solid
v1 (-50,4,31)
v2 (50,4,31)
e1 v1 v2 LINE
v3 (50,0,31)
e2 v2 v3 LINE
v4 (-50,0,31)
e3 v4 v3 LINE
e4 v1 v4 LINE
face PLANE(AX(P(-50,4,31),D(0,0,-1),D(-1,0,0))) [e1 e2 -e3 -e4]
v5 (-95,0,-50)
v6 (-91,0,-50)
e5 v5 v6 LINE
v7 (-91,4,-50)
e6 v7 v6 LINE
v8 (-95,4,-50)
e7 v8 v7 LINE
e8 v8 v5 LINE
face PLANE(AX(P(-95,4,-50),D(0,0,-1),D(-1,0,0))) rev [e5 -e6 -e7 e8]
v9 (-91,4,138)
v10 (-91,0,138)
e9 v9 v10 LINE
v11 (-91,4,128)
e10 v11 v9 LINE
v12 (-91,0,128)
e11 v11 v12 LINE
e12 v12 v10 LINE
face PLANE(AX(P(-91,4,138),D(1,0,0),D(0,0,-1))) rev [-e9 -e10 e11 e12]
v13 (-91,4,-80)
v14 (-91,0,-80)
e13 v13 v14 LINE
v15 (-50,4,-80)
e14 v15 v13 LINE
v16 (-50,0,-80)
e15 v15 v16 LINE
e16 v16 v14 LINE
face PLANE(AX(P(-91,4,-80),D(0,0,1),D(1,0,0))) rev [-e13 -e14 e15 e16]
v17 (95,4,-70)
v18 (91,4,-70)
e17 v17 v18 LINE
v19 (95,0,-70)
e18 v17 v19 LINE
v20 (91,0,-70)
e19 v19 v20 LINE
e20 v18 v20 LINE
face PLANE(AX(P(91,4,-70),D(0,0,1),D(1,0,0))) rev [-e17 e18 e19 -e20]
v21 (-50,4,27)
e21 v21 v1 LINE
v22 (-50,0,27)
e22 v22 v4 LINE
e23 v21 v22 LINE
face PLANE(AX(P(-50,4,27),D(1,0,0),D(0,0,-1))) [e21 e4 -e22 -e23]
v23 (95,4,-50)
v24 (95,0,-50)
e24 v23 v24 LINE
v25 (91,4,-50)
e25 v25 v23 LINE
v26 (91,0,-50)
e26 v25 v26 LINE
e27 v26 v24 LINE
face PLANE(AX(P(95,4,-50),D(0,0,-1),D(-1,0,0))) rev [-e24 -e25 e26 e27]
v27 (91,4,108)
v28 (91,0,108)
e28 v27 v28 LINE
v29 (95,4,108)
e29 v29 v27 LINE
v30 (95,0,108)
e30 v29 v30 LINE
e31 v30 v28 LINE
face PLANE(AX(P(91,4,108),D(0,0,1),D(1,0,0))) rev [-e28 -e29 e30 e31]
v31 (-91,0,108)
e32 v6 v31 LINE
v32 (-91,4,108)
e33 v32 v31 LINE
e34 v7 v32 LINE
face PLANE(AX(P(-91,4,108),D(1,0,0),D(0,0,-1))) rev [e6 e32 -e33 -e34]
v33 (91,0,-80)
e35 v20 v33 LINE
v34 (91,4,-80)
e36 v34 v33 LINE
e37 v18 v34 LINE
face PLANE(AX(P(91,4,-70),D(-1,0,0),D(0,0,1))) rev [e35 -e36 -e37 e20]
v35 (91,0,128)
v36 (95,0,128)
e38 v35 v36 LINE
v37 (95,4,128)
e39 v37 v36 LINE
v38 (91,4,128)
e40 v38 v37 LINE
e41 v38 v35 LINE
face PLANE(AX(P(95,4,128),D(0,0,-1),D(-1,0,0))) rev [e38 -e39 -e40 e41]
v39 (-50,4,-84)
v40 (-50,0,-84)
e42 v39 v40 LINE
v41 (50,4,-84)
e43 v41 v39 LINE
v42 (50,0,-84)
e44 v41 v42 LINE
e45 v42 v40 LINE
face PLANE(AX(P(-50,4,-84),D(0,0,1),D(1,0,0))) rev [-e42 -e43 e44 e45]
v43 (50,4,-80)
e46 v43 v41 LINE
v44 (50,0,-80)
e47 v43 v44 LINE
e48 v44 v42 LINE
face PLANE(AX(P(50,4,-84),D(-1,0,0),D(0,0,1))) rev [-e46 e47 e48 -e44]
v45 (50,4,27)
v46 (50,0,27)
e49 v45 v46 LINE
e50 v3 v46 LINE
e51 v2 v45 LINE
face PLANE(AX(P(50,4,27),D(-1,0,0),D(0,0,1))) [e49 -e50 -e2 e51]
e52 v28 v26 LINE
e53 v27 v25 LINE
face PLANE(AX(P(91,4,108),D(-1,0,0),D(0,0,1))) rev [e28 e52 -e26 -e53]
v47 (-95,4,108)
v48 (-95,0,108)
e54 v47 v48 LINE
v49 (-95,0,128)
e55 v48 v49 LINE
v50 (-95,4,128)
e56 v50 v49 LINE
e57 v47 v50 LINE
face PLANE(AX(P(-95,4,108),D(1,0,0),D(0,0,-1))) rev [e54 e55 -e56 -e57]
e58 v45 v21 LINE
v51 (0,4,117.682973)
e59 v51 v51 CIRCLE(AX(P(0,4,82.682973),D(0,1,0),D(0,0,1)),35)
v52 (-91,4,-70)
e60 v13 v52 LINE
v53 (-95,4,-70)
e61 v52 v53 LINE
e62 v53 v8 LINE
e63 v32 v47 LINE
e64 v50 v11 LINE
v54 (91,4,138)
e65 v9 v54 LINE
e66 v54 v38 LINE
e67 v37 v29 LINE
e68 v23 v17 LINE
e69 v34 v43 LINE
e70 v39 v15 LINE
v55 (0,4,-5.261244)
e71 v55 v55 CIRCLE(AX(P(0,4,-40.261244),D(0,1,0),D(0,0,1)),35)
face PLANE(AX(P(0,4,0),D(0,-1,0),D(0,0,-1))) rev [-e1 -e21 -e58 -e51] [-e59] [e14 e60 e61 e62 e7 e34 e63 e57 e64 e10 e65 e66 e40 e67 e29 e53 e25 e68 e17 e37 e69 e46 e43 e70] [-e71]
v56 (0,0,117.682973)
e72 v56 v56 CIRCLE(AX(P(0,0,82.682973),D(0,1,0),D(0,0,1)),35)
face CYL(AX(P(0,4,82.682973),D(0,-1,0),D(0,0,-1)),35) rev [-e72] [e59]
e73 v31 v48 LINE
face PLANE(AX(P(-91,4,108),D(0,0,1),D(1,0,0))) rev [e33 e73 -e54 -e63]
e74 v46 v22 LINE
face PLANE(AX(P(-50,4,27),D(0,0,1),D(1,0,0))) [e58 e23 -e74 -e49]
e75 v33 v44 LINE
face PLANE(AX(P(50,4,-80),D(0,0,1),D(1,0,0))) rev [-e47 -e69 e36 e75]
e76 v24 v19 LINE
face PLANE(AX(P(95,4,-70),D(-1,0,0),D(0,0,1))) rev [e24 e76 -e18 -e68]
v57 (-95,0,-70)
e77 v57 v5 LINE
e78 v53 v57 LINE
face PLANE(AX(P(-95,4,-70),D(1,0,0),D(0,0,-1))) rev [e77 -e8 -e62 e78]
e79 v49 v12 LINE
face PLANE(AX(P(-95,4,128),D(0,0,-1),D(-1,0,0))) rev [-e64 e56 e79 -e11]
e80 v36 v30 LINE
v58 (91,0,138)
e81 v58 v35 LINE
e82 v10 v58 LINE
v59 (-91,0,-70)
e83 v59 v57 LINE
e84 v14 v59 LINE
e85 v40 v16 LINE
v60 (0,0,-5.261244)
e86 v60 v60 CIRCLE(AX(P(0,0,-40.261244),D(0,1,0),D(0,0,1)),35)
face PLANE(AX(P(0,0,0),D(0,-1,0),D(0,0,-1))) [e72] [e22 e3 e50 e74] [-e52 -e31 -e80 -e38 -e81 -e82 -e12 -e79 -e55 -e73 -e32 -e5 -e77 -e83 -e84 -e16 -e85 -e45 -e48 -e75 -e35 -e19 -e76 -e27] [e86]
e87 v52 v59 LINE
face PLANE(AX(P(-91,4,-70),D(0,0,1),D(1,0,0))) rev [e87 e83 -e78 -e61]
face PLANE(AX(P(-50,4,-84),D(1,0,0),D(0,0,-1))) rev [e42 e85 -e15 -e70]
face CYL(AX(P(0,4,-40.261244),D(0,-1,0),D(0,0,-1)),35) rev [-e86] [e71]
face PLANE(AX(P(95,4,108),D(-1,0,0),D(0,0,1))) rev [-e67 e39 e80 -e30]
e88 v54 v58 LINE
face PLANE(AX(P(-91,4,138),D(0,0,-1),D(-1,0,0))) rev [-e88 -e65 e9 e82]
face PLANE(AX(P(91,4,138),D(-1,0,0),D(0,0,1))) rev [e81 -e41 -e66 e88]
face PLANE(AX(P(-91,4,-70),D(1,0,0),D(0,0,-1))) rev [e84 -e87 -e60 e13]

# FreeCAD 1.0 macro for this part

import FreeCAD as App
import Part
import Sketcher

doc = App.newDocument("Part")
body = doc.addObject("PartDesign::Body", "Body")

sketch1 = body.newObject("Sketcher::SketchObject", "Sketch")
sketch1.AttachmentSupport = (doc.getObject("XZ_Plane"), [""])
sketch1.MapMode = "FlatFace"
sketch1.addGeometry([
    Part.LineSegment(App.Vector(50, -84, 0), App.Vector(-50, -84, 0)),
    Part.LineSegment(App.Vector(-50, -84, 0), App.Vector(-50, -80, 0)),
    Part.LineSegment(App.Vector(-50, -80, 0), App.Vector(-91, -80, 0)),
    Part.LineSegment(App.Vector(-91, -80, 0), App.Vector(-91, -70, 0)),
    Part.LineSegment(App.Vector(-91, -70, 0), App.Vector(-95, -70, 0)),
    Part.LineSegment(App.Vector(-95, -70, 0), App.Vector(-95, -50, 0)),
    Part.LineSegment(App.Vector(-95, -50, 0), App.Vector(-91, -50, 0)),
    Part.LineSegment(App.Vector(-91, -50, 0), App.Vector(-91, 108, 0)),
    Part.LineSegment(App.Vector(-91, 108, 0), App.Vector(-95, 108, 0)),
    Part.LineSegment(App.Vector(-95, 108, 0), App.Vector(-95, 128, 0)),
    Part.LineSegment(App.Vector(-95, 128, 0), App.Vector(-91, 128, 0)),
    Part.LineSegment(App.Vector(-91, 128, 0), App.Vector(-91, 138, 0)),
    Part.LineSegment(App.Vector(-91, 138, 0), App.Vector(91, 138, 0)),
    Part.LineSegment(App.Vector(91, 138, 0), App.Vector(91, 128, 0)),
    Part.LineSegment(App.Vector(91, 128, 0), App.Vector(95, 128, 0)),
    Part.LineSegment(App.Vector(95, 128, 0), App.Vector(95, 108, 0)),
    Part.LineSegment(App.Vector(95, 108, 0), App.Vector(91, 108, 0)),
    Part.LineSegment(App.Vector(91, 108, 0), App.Vector(91, -50, 0)),
    Part.LineSegment(App.Vector(91, -50, 0), App.Vector(95, -50, 0)),
    Part.LineSegment(App.Vector(95, -50, 0), App.Vector(95, -70, 0)),
    Part.LineSegment(App.Vector(95, -70, 0), App.Vector(91, -70, 0)),
    Part.LineSegment(App.Vector(91, -70, 0), App.Vector(91, -80, 0)),
    Part.LineSegment(App.Vector(91, -80, 0), App.Vector(50, -80, 0)),
    Part.LineSegment(App.Vector(50, -80, 0), App.Vector(50, -84, 0)),
    Part.Circle(App.Vector(0, 82.7, 0), App.Vector(0, 0, 1), 35),
    Part.LineSegment(App.Vector(-50, 31, 0), App.Vector(-50, 27, 0)),
    Part.LineSegment(App.Vector(-50, 27, 0), App.Vector(50, 27, 0)),
    Part.LineSegment(App.Vector(50, 27, 0), App.Vector(50, 31, 0)),
    Part.LineSegment(App.Vector(50, 31, 0), App.Vector(-50, 31, 0)),
    Part.Circle(App.Vector(0, -40.3, 0), App.Vector(0, 0, 1), 35),
], False)
sketch1.addConstraint([
    Sketcher.Constraint("Coincident", 0, 2, 1, 1),
    Sketcher.Constraint("Coincident", 1, 2, 2, 1),
    Sketcher.Constraint("Coincident", 2, 2, 3, 1),
    Sketcher.Constraint("Coincident", 3, 2, 4, 1),
    Sketcher.Constraint("Coincident", 4, 2, 5, 1),
    Sketcher.Constraint("Coincident", 5, 2, 6, 1),
    Sketcher.Constraint("Coincident", 6, 2, 7, 1),
    Sketcher.Constraint("Coincident", 7, 2, 8, 1),
    Sketcher.Constraint("Coincident", 8, 2, 9, 1),
    Sketcher.Constraint("Coincident", 9, 2, 10, 1),
    Sketcher.Constraint("Coincident", 10, 2, 11, 1),
    Sketcher.Constraint("Coincident", 11, 2, 12, 1),
    Sketcher.Constraint("Coincident", 12, 2, 13, 1),
    Sketcher.Constraint("Coincident", 13, 2, 14, 1),
    Sketcher.Constraint("Coincident", 14, 2, 15, 1),
    Sketcher.Constraint("Coincident", 15, 2, 16, 1),
    Sketcher.Constraint("Coincident", 16, 2, 17, 1),
    Sketcher.Constraint("Coincident", 17, 2, 18, 1),
    Sketcher.Constraint("Coincident", 18, 2, 19, 1),
    Sketcher.Constraint("Coincident", 19, 2, 20, 1),
    Sketcher.Constraint("Coincident", 20, 2, 21, 1),
    Sketcher.Constraint("Coincident", 21, 2, 22, 1),
    Sketcher.Constraint("Coincident", 22, 2, 23, 1),
    Sketcher.Constraint("Coincident", 23, 2, 0, 1),
    Sketcher.Constraint("Coincident", 25, 2, 26, 1),
    Sketcher.Constraint("Coincident", 26, 2, 27, 1),
    Sketcher.Constraint("Coincident", 27, 2, 28, 1),
    Sketcher.Constraint("Coincident", 28, 2, 25, 1),
    Sketcher.Constraint("Horizontal", 0),
    Sketcher.Constraint("Vertical", 1),
    Sketcher.Constraint("Horizontal", 2),
    Sketcher.Constraint("Vertical", 3),
    Sketcher.Constraint("Horizontal", 4),
    Sketcher.Constraint("Vertical", 5),
    Sketcher.Constraint("Horizontal", 6),
    Sketcher.Constraint("Vertical", 7),
    Sketcher.Constraint("Horizontal", 8),
    Sketcher.Constraint("Vertical", 9),
    Sketcher.Constraint("Horizontal", 10),
    Sketcher.Constraint("Vertical", 11),
    Sketcher.Constraint("Horizontal", 12),
    Sketcher.Constraint("Vertical", 13),
    Sketcher.Constraint("Horizontal", 14),
    Sketcher.Constraint("Vertical", 15),
    Sketcher.Constraint("Horizontal", 16),
    Sketcher.Constraint("Vertical", 17),
    Sketcher.Constraint("Horizontal", 18),
    Sketcher.Constraint("Vertical", 19),
    Sketcher.Constraint("Horizontal", 20),
    Sketcher.Constraint("Vertical", 21),
    Sketcher.Constraint("Horizontal", 22),
    Sketcher.Constraint("Vertical", 23),
    Sketcher.Constraint("Vertical", 25),
    Sketcher.Constraint("Horizontal", 26),
    Sketcher.Constraint("Vertical", 27),
    Sketcher.Constraint("Horizontal", 28),
    Sketcher.Constraint("Equal", 24, 29),
    Sketcher.Constraint("Symmetric", 10, 2, 13, 2, -2),
    Sketcher.Constraint("Symmetric", 8, 2, 15, 2, -2),
    Sketcher.Constraint("Symmetric", 6, 2, 17, 2, -2),
    Sketcher.Constraint("Symmetric", 4, 2, 19, 2, -2),
    Sketcher.Constraint("Symmetric", 2, 2, 21, 2, -2),
    Sketcher.Constraint("PointOnObject", 24, 3, -2),
    Sketcher.Constraint("PointOnObject", 29, 3, -2),
    Sketcher.Constraint("Vertical", 3, 2, 6, 2),
    Sketcher.Constraint("Vertical", 5, 2, 8, 2),
    Sketcher.Constraint("Vertical", 7, 2, 10, 2),
    Sketcher.Constraint("Vertical", 1, 2, 25, 2),
    Sketcher.Constraint("Vertical", 23, 2, 26, 2),
    Sketcher.Constraint("Equal", 2, 22),
    Sketcher.Constraint("Equal", 20, 1),
    Sketcher.Constraint("Equal", 5, 9),
    Sketcher.Constraint("Equal", 3, 11),
    Sketcher.Constraint("Equal", 23, 25),
    Sketcher.Constraint("Diameter", 24, 70.0),
    Sketcher.Constraint("DistanceX", 0, 2, 0, 1, 100.0),
    Sketcher.Constraint("DistanceX", 2, 2, 2, 1, 41.0),
    Sketcher.Constraint("DistanceX", 4, 2, 4, 1, 4.0),
    Sketcher.Constraint("DistanceY", 3, 1, 3, 2, 10.0),
    Sketcher.Constraint("DistanceY", 5, 1, 5, 2, 20.0),
    Sketcher.Constraint("DistanceY", 7, 1, 7, 2, 158.0),
    Sketcher.Constraint("DistanceY", 0, 2, -1, 1, 84.0),
    Sketcher.Constraint("DistanceY", -1, 1, 25, 2, 27.0),
    Sketcher.Constraint("DistanceY", -1, 1, 24, 3, 82.682973),
    Sketcher.Constraint("DistanceY", 29, 3, -1, 1, 40.261244),
])
pad1 = body.newObject("PartDesign::Pad", "Pad")
pad1.Profile = sketch1
pad1.Length = 4
pad1.Reversed = True

doc.recompute()
